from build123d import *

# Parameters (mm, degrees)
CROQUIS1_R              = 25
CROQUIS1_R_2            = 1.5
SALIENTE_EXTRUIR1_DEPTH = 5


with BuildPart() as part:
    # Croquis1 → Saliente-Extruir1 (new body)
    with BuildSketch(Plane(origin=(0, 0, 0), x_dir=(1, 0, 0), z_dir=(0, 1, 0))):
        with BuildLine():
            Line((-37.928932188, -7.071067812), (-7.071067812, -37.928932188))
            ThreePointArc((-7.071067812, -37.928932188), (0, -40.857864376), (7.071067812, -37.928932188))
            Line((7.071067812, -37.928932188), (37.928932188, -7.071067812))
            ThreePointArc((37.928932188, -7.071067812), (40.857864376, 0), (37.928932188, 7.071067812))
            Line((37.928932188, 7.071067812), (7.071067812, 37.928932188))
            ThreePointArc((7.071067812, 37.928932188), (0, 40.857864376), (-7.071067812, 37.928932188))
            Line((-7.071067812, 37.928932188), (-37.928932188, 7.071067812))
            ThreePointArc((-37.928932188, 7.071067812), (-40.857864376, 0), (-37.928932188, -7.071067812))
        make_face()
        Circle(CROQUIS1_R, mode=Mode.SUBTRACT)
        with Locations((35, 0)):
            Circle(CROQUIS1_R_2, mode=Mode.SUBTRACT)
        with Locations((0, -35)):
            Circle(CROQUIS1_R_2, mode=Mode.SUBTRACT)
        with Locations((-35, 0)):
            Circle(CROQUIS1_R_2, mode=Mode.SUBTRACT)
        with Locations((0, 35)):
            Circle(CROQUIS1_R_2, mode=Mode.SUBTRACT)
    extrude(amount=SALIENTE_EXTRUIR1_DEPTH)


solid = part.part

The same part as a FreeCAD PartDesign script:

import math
import FreeCAD as App
import Part
import Sketcher

doc = App.newDocument("Part")
body = doc.addObject("PartDesign::Body", "Body")

# Sketch on XZ plane
sketch1 = doc.addObject("Sketcher::SketchObject", "Sketch")
body.addObject(sketch1)
sketch1.AttachmentSupport = (doc.XZ_Plane, [""])
sketch1.MapMode = "FlatFace"
sketch1.addGeometry([
    Part.LineSegment(App.Vector(-37.9, 7.1, 0), App.Vector(-7.1, 37.9, 0)),  # 0
    Part.ArcOfCircle(Part.Circle(App.Vector(0, 30.9, 0), App.Vector(0, 0, 1), 10), math.radians(45), math.radians(135)),  # 1
    Part.LineSegment(App.Vector(7.1, 37.9, 0), App.Vector(37.9, 7.1, 0)),  # 2
    Part.ArcOfCircle(Part.Circle(App.Vector(30.9, 0, 0), App.Vector(0, 0, 1), 10), math.radians(-45), math.radians(45)),  # 3
    Part.LineSegment(App.Vector(37.9, -7.1, 0), App.Vector(7.1, -37.9, 0)),  # 4
    Part.ArcOfCircle(Part.Circle(App.Vector(0, -30.9, 0), App.Vector(0, 0, 1), 10), math.radians(-135), math.radians(-45)),  # 5
    Part.LineSegment(App.Vector(-7.1, -37.9, 0), App.Vector(-37.9, -7.1, 0)),  # 6
    Part.ArcOfCircle(Part.Circle(App.Vector(-30.9, 0, 0), App.Vector(0, 0, 1), 10), math.radians(135), math.radians(225)),  # 7
    Part.Circle(App.Vector(0, 35, 0), App.Vector(0, 0, 1), 1.5),  # 8
    Part.Circle(App.Vector(-35, 0, 0), App.Vector(0, 0, 1), 1.5),  # 9
    Part.Circle(App.Vector(0, 0, 0), App.Vector(0, 0, 1), 25),  # 10
    Part.Circle(App.Vector(35, 0, 0), App.Vector(0, 0, 1), 1.5),  # 11
    Part.Circle(App.Vector(0, -35, 0), App.Vector(0, 0, 1), 1.5),  # 12
], False)
sketch1.addConstraint([
    Sketcher.Constraint("Tangent", 0, 2, 1, 2),
    Sketcher.Constraint("Tangent", 1, 1, 2, 1),
    Sketcher.Constraint("Tangent", 2, 2, 3, 2),
    Sketcher.Constraint("Tangent", 3, 1, 4, 1),
    Sketcher.Constraint("Tangent", 4, 2, 5, 2),
    Sketcher.Constraint("Tangent", 5, 1, 6, 1),
    Sketcher.Constraint("Tangent", 6, 2, 7, 2),
    Sketcher.Constraint("Tangent", 7, 1, 0, 1),
    Sketcher.Constraint("Coincident", 10, 3, -1, 1),
    Sketcher.Constraint("Equal", 1, 3),
    Sketcher.Constraint("Equal", 3, 5),
    Sketcher.Constraint("Equal", 5, 7),
    Sketcher.Constraint("Equal", 8, 9),
    Sketcher.Constraint("Equal", 9, 11),
    Sketcher.Constraint("Equal", 11, 12),
    Sketcher.Constraint("Symmetric", 1, 3, 5, 3, -1, 1),
    Sketcher.Constraint("Symmetric", 3, 3, 7, 3, -1, 1),
    Sketcher.Constraint("Symmetric", 9, 3, 11, 3, -1, 1),
    Sketcher.Constraint("Symmetric", 8, 3, 12, 3, -1, 1),
    Sketcher.Constraint("Symmetric", 0, 2, 1, 1, -2),
    Sketcher.Constraint("PointOnObject", 8, 3, -2),
    Sketcher.Constraint("PointOnObject", 9, 3, -1),
    Sketcher.Constraint("Perpendicular", 0, 2),
    Sketcher.Constraint("Diameter", 8, 3.0),
    Sketcher.Constraint("Diameter", 10, 50.0),
    Sketcher.Constraint("Radius", 1, 10.0),
    Sketcher.Constraint("DistanceY", -1, 1, 8, 3, 35.0),
    Sketcher.Constraint("DistanceX", 9, 3, -1, 1, 35.0),
    Sketcher.Constraint("Distance", 0, 43.63961),
])
pad1 = doc.addObject("PartDesign::Pad", "Pad")
body.addObject(pad1)
pad1.Profile = sketch1
pad1.Length = 5
pad1.Reversed = True

doc.recompute()
